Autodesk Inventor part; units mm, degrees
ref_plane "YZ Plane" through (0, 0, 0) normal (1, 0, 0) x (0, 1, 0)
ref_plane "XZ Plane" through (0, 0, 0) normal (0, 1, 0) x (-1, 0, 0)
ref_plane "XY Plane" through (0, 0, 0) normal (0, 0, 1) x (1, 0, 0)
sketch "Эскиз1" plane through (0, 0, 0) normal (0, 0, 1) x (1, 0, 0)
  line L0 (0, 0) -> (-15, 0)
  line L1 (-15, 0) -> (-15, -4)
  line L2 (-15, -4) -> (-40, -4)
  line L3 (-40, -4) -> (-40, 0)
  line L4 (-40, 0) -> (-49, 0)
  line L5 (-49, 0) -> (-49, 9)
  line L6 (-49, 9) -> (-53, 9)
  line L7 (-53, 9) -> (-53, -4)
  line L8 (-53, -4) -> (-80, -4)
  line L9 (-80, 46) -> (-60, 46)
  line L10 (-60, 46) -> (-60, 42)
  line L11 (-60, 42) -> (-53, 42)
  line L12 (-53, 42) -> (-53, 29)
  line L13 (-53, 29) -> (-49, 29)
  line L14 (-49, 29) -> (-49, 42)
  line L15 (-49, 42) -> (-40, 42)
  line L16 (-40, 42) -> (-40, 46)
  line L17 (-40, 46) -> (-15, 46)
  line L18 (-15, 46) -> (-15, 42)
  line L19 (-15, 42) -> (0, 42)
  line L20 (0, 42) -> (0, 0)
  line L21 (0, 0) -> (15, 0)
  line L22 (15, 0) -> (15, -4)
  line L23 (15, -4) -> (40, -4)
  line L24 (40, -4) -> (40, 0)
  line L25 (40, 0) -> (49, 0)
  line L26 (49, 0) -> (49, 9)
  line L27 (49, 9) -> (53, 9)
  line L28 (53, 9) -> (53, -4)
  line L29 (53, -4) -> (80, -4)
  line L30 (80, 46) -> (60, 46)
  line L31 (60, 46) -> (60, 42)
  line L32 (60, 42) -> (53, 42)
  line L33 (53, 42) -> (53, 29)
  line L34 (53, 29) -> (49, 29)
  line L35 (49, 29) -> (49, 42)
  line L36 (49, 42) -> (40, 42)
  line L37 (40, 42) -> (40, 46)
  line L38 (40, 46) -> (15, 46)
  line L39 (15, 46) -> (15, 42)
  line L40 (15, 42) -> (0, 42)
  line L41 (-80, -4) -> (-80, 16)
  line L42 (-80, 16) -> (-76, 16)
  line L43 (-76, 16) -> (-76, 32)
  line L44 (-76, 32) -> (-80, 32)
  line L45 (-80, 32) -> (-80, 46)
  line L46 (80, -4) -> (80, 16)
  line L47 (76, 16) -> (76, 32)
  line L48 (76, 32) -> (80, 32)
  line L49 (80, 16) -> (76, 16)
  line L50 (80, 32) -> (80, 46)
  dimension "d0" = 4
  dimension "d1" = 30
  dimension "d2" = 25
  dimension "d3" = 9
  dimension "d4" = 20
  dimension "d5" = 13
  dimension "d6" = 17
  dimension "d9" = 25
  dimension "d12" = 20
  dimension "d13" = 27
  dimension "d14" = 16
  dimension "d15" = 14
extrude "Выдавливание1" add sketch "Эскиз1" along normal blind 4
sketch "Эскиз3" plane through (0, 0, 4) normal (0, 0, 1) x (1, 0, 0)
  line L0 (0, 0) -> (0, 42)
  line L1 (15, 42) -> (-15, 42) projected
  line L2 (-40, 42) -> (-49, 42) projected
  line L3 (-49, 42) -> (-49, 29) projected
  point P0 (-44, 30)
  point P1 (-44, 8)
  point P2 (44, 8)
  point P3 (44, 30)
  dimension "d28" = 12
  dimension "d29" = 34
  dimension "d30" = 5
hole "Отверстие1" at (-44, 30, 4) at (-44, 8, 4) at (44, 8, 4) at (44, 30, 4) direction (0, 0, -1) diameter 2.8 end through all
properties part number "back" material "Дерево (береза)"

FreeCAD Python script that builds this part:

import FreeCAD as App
import Part
import Sketcher
from FreeCAD import Vector
Q = App.Units.Quantity


def add_polygon(sketch, points):
    """Adds a closed chain of lines whose ends are joined by coincident constraints."""
    first, n = sketch.GeometryCount, len(points)
    for a, b in zip(points, points[1:] + points[:1]):
        sketch.addGeometry(Part.LineSegment(App.Vector(*a, 0), App.Vector(*b, 0)), False)
    for i in range(n):
        sketch.addConstraint(Sketcher.Constraint("Coincident", first + i, 2, first + (i + 1) % n, 1))

doc = App.newDocument("Part")
body = doc.addObject("PartDesign::Body", "Body")

# Sketch on XY plane
sketch1 = body.newObject("Sketcher::SketchObject", "Sketch")
sketch1.AttachmentSupport = (doc.getObject("XY_Plane"), [""])
sketch1.MapMode = "FlatFace"
add_polygon(sketch1, [(-15, 0), (15, 0), (15, -4), (40, -4), (40, 0), (49, 0), (49, 9), (53, 9), (53, -4), (80, -4), (80, 16), (76, 16), (76, 32), (80, 32), (80, 46), (60, 46), (60, 42), (53, 42), (53, 29), (49, 29), (49, 42), (40, 42), (40, 46), (15, 46), (15, 42), (-15, 42), (-15, 46), (-40, 46), (-40, 42), (-49, 42), (-49, 29), (-53, 29), (-53, 42), (-60, 42), (-60, 46), (-80, 46), (-80, 32), (-76, 32), (-76, 16), (-80, 16), (-80, -4), (-53, -4), (-53, 9), (-49, 9), (-49, 0), (-40, 0), (-40, -4), (-15, -4)])  # lines 0-47
sketch1.addConstraint([
    Sketcher.Constraint("Horizontal", 0),
    Sketcher.Constraint("Vertical", 1),
    Sketcher.Constraint("Horizontal", 2),
    Sketcher.Constraint("Vertical", 3),
    Sketcher.Constraint("Horizontal", 4),
    Sketcher.Constraint("Vertical", 5),
    Sketcher.Constraint("Horizontal", 6),
    Sketcher.Constraint("Vertical", 7),
    Sketcher.Constraint("Horizontal", 8),
    Sketcher.Constraint("Vertical", 9),
    Sketcher.Constraint("Horizontal", 10),
    Sketcher.Constraint("Vertical", 11),
    Sketcher.Constraint("Horizontal", 12),
    Sketcher.Constraint("Vertical", 13),
    Sketcher.Constraint("Horizontal", 14),
    Sketcher.Constraint("Vertical", 15),
    Sketcher.Constraint("Horizontal", 16),
    Sketcher.Constraint("Vertical", 17),
    Sketcher.Constraint("Horizontal", 18),
    Sketcher.Constraint("Vertical", 19),
    Sketcher.Constraint("Horizontal", 20),
    Sketcher.Constraint("Vertical", 21),
    Sketcher.Constraint("Horizontal", 22),
    Sketcher.Constraint("Vertical", 23),
    Sketcher.Constraint("Horizontal", 24),
    Sketcher.Constraint("Vertical", 25),
    Sketcher.Constraint("Horizontal", 26),
    Sketcher.Constraint("Vertical", 27),
    Sketcher.Constraint("Horizontal", 28),
    Sketcher.Constraint("Vertical", 29),
    Sketcher.Constraint("Horizontal", 30),
    Sketcher.Constraint("Vertical", 31),
    Sketcher.Constraint("Horizontal", 32),
    Sketcher.Constraint("Vertical", 33),
    Sketcher.Constraint("Horizontal", 34),
    Sketcher.Constraint("Vertical", 35),
    Sketcher.Constraint("Horizontal", 36),
    Sketcher.Constraint("Vertical", 37),
    Sketcher.Constraint("Horizontal", 38),
    Sketcher.Constraint("Vertical", 39),
    Sketcher.Constraint("Horizontal", 40),
    Sketcher.Constraint("Vertical", 41),
    Sketcher.Constraint("Horizontal", 42),
    Sketcher.Constraint("Vertical", 43),
    Sketcher.Constraint("Horizontal", 44),
    Sketcher.Constraint("Vertical", 45),
    Sketcher.Constraint("Horizontal", 46),
    Sketcher.Constraint("Vertical", 47),
    Sketcher.Constraint("Symmetric", 4, 2, 43, 2, -1, 1),
    Sketcher.Constraint("Symmetric", 0, 2, 47, 2, -1, 1),
    Sketcher.Constraint("Symmetric", 22, 2, 25, 2, -2),
    Sketcher.Constraint("Symmetric", 20, 2, 27, 2, -2),
    Sketcher.Constraint("Symmetric", 18, 2, 29, 2, -2),
    Sketcher.Constraint("Symmetric", 16, 2, 31, 2, -2),
    Sketcher.Constraint("Symmetric", 14, 2, 33, 2, -2),
    Sketcher.Constraint("Symmetric", 12, 2, 35, 2, -2),
    Sketcher.Constraint("Symmetric", 10, 2, 37, 2, -2),
    Sketcher.Constraint("Symmetric", 8, 2, 39, 2, -2),
    Sketcher.Constraint("Symmetric", 6, 2, 41, 2, -2),
    Sketcher.Constraint("Symmetric", 3, 2, 44, 2, -2),
    Sketcher.Constraint("Horizontal", 2, 2, 7, 2),
    Sketcher.Constraint("Horizontal", 16, 2, 19, 2),
    Sketcher.Constraint("Horizontal", 14, 2, 21, 2),
    Sketcher.Constraint("Horizontal", 20, 2, 23, 2),
    Sketcher.Constraint("Horizontal", 40, 2, 45, 2),
    Sketcher.Constraint("Vertical", 9, 2, 12, 2),
    Sketcher.Constraint("Vertical", 7, 2, 16, 2),
    Sketcher.Constraint("Vertical", 5, 2, 18, 2),
    Sketcher.Constraint("Vertical", 3, 2, 20, 2),
    Sketcher.Constraint("Vertical", 1, 2, 22, 2),
    Sketcher.Constraint("Equal", 6, 10),
    Sketcher.Constraint("Equal", 42, 1),
    Sketcher.Constraint("Equal", 44, 5),
    Sketcher.Constraint("Equal", 34, 9),
    Sketcher.Constraint("Equal", 3, 15),
    Sketcher.Constraint("Equal", 7, 17),
    Sketcher.Constraint("DistanceX", 0, 1, 0, 2, Q("30 mm")),
    Sketcher.Constraint("DistanceX", 2, 1, 2, 2, Q("25 mm")),
    Sketcher.Constraint("DistanceX", 4, 1, 4, 2, Q("9 mm")),
    Sketcher.Constraint("DistanceX", 6, 1, 6, 2, Q("4 mm")),
    Sketcher.Constraint("DistanceX", 8, 1, 8, 2, Q("27 mm")),
    Sketcher.Constraint("DistanceX", 14, 2, 14, 1, Q("20 mm")),
    Sketcher.Constraint("DistanceY", 11, 1, 11, 2, Q("16 mm")),
    Sketcher.Constraint("DistanceY", 13, 1, 13, 2, Q("14 mm")),
])
pad1 = body.newObject("PartDesign::Pad", "Pad")
pad1.Profile = sketch1
pad1.Length = 4

# Sketch on XY plane
sketch2 = body.newObject("Sketcher::SketchObject", "Sketch001")
sketch2.AttachmentSupport = (doc.getObject("XY_Plane"), [""])
sketch2.MapMode = "FlatFace"
sketch2.AttachmentOffset = App.Placement(Vector(0, 0, 4), App.Rotation())
sketch2.addGeometry([
    Part.Circle(Vector(-44, 30, 0), Vector(0, 0, 1), 1.4),
    Part.Circle(Vector(-44, 8, 0), Vector(0, 0, 1), 1.4),
    Part.Circle(Vector(44, 8, 0), Vector(0, 0, 1), 1.4),
    Part.Circle(Vector(44, 30, 0), Vector(0, 0, 1), 1.4),
], False)
sketch2.addConstraint([
    Sketcher.Constraint("Equal", 0, 1),
    Sketcher.Constraint("Equal", 1, 2),
    Sketcher.Constraint("Equal", 2, 3),
    Sketcher.Constraint("Symmetric", 1, 3, 2, 3, -2),
    Sketcher.Constraint("Symmetric", 0, 3, 3, 3, -2),
    Sketcher.Constraint("Vertical", 0, 3, 1, 3),
    Sketcher.Constraint("Diameter", 0, Q("2.8 mm")),
    Sketcher.Constraint("DistanceX", 0, 3, -1, 1, Q("44 mm")),
    Sketcher.Constraint("DistanceY", -1, 1, 0, 3, Q("30 mm")),
    Sketcher.Constraint("DistanceY", -1, 1, 1, 3, Q("8 mm")),
])
doc.recompute()
hole = body.newObject("PartDesign::Hole", "Hole")
hole.Profile = sketch2
hole.ThreadType = "None"
hole.Diameter = 2.8
hole.DepthType = "ThroughAll"

doc.recompute()
